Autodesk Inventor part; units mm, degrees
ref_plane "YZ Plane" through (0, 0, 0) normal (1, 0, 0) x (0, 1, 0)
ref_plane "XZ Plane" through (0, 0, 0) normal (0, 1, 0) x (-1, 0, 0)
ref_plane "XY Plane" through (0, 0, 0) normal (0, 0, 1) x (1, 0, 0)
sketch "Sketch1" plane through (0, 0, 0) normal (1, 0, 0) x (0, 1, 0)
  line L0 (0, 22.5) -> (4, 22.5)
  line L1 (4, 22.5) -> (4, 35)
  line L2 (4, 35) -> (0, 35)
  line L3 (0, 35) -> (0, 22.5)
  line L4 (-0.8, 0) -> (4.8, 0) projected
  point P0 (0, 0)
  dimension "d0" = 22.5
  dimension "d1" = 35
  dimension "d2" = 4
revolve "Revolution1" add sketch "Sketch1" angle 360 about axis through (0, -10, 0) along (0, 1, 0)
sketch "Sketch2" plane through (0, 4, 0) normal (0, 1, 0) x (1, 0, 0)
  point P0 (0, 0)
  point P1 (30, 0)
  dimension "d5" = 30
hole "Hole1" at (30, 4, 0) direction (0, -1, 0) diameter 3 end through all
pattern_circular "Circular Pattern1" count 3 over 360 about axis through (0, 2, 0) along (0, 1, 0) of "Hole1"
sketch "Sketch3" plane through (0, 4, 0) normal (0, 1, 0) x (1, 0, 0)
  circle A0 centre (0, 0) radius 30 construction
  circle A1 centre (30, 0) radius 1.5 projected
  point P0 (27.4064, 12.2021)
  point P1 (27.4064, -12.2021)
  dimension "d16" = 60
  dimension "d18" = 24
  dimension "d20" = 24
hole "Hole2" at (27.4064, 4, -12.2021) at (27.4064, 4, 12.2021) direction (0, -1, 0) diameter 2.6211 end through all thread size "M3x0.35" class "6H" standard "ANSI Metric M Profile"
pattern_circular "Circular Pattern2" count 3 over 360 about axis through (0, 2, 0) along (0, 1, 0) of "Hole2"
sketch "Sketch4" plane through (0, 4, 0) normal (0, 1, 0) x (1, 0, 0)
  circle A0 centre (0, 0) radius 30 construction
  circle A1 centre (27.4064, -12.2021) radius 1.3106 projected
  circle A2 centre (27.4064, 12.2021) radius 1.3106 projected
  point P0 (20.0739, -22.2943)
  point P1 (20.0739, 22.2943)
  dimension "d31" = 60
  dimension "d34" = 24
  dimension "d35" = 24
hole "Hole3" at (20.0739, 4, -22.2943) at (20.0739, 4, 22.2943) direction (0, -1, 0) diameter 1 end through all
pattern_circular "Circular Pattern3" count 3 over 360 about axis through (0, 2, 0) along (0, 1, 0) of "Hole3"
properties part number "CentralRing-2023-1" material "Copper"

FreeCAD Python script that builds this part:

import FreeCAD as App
import Part
import Sketcher

V = App.Vector


def add_polygon(sketch, points):
    """Adds a closed chain of lines whose ends are joined by coincident constraints."""
    first, n = sketch.GeometryCount, len(points)
    for a, b in zip(points, points[1:] + points[:1]):
        sketch.addGeometry(Part.LineSegment(App.Vector(*a, 0), App.Vector(*b, 0)), False)
    for i in range(n):
        sketch.addConstraint(Sketcher.Constraint("Coincident", first + i, 2, first + (i + 1) % n, 1))

doc = App.newDocument("Part")
params = doc.addObject("Spreadsheet::Sheet", "Params")
for row, (alias, value) in enumerate([
    ("sketch1_width", "4 mm"),
    ("revolution_angle", "360 deg"),
    ("sketch2_diameter", "3 mm"),
    ("hole_diameter", "3 mm"),
    ("hole2_diameter", "2.6211 mm"),
    ("sketch4_diameter", "1 mm"),
    ("hole3_diameter", "1 mm"),
], start=1):
    params.set(f"A{row}", alias)
    params.set(f"B{row}", "=" + value)
    params.setAlias(f"B{row}", alias)

body = doc.addObject("PartDesign::Body", "Body")

# Sketch on YZ plane
sketch1 = doc.addObject("Sketcher::SketchObject", "Sketch")
body.addObject(sketch1)
sketch1.AttachmentSupport = (doc.YZ_Plane, [""])
sketch1.MapMode = "FlatFace"
add_polygon(sketch1, [(0, 35), (0, 22.5), (4, 22.5), (4, 35)])  # lines 0-3
sketch1.addConstraint(Sketcher.Constraint("Vertical", 0))
sketch1.addConstraint(Sketcher.Constraint("Horizontal", 1))
sketch1.addConstraint(Sketcher.Constraint("Vertical", 2))
sketch1.addConstraint(Sketcher.Constraint("Horizontal", 3))
sketch1.addConstraint(Sketcher.Constraint("PointOnObject", 0, 2, -2))
sketch1.addConstraint(Sketcher.Constraint("DistanceX", 1, 1, 1, 2, 4.0))
sketch1.addConstraint(Sketcher.Constraint("DistanceY", -1, 1, 2, 2, 35.0))
sketch1.addConstraint(Sketcher.Constraint("DistanceY", -1, 1, 0, 2, 22.5))
sketch1.setExpression("Constraints[9]", "Params.sketch1_width")
revolution = doc.addObject("PartDesign::Revolution", "Revolution")
body.addObject(revolution)
revolution.Profile = sketch1
revolution.ReferenceAxis = (sketch1, ["H_Axis"])
revolution.setExpression("Angle", "Params.revolution_angle")

# Sketch on XZ plane
sketch2 = doc.addObject("Sketcher::SketchObject", "Sketch001")
body.addObject(sketch2)
sketch2.AttachmentSupport = (doc.XZ_Plane, [""])
sketch2.MapMode = "FlatFace"
sketch2.AttachmentOffset = App.Placement(V(0, 0, -4), App.Rotation())
sketch2.addGeometry(Part.Circle(V(30, 0, 0), V(0, 0, 1), 1.5), False)
sketch2.addConstraint(Sketcher.Constraint("PointOnObject", 0, 3, -1))
sketch2.addConstraint(Sketcher.Constraint("Diameter", 0, 3.0))
sketch2.addConstraint(Sketcher.Constraint("DistanceX", -1, 1, 0, 3, 30.0))
sketch2.setExpression("Constraints[1]", "Params.sketch2_diameter")
doc.recompute()
hole = doc.addObject("PartDesign::Hole", "Hole")
body.addObject(hole)
hole.Profile = sketch2
hole.ThreadType = "None"
hole.setExpression("Diameter", "Params.hole_diameter")
hole.DepthType = "ThroughAll"
hole.Reversed = True
doc.recompute()

polarpattern = doc.addObject("PartDesign::PolarPattern", "PolarPattern")
body.addObject(polarpattern)
polarpattern.Originals = [hole]
polarpattern.Axis = (doc.Y_Axis, [""])
polarpattern.Angle = 360
polarpattern.Occurrences = 3
body.Tip = polarpattern

# Sketch on XZ plane
sketch3 = doc.addObject("Sketcher::SketchObject", "Sketch002")
body.addObject(sketch3)
sketch3.AttachmentSupport = (doc.XZ_Plane, [""])
sketch3.MapMode = "FlatFace"
sketch3.AttachmentOffset = App.Placement(V(0, 0, -4), App.Rotation())
sketch3.addGeometry(Part.Circle(V(27.4, -12.2, 0), V(0, 0, 1), 1.3), False)
sketch3.addGeometry(Part.Circle(V(27.4, 12.2, 0), V(0, 0, 1), 1.3), False)
sketch3.addConstraint(Sketcher.Constraint("Equal", 0, 1))
sketch3.addConstraint(Sketcher.Constraint("Symmetric", 0, 3, 1, 3, -1))
sketch3.addConstraint(Sketcher.Constraint("Diameter", 0, 2.621))
sketch3.addConstraint(Sketcher.Constraint("DistanceY", 0, 3, -1, 1, 12.202))
sketch3.addConstraint(Sketcher.Constraint("DistanceX", -1, 1, 0, 3, 27.4064))
doc.recompute()
hole2 = doc.addObject("PartDesign::Hole", "Hole001")
body.addObject(hole2)
hole2.Profile = sketch3
hole2.ThreadType = "None"
hole2.setExpression("Diameter", "Params.hole2_diameter")
hole2.DepthType = "ThroughAll"
hole2.Reversed = True
doc.recompute()

polarpattern2 = doc.addObject("PartDesign::PolarPattern", "PolarPattern001")
body.addObject(polarpattern2)
polarpattern2.Originals = [hole2]
polarpattern2.Axis = (doc.Y_Axis, [""])
polarpattern2.Angle = 360
polarpattern2.Occurrences = 3
body.Tip = polarpattern2

# Sketch on XZ plane
sketch4 = doc.addObject("Sketcher::SketchObject", "Sketch003")
body.addObject(sketch4)
sketch4.AttachmentSupport = (doc.XZ_Plane, [""])
sketch4.MapMode = "FlatFace"
sketch4.AttachmentOffset = App.Placement(V(0, 0, -4), App.Rotation())
sketch4.addGeometry(Part.Circle(V(20.1, -22.3, 0), V(0, 0, 1), 0.5), False)
sketch4.addGeometry(Part.Circle(V(20.1, 22.3, 0), V(0, 0, 1), 0.5), False)
sketch4.addConstraint(Sketcher.Constraint("Equal", 0, 1))
sketch4.addConstraint(Sketcher.Constraint("Symmetric", 0, 3, 1, 3, -1))
sketch4.addConstraint(Sketcher.Constraint("Diameter", 0, 1.0))
sketch4.addConstraint(Sketcher.Constraint("DistanceX", -1, 1, 0, 3, 20.074))
sketch4.addConstraint(Sketcher.Constraint("DistanceY", 0, 3, -1, 1, 22.2943))
sketch4.setExpression("Constraints[2]", "Params.sketch4_diameter")
doc.recompute()
hole3 = doc.addObject("PartDesign::Hole", "Hole002")
body.addObject(hole3)
hole3.Profile = sketch4
hole3.ThreadType = "None"
hole3.setExpression("Diameter", "Params.hole3_diameter")
hole3.DepthType = "ThroughAll"
hole3.Reversed = True
doc.recompute()

polarpattern3 = doc.addObject("PartDesign::PolarPattern", "PolarPattern002")
body.addObject(polarpattern3)
polarpattern3.Originals = [hole3]
polarpattern3.Axis = (doc.Y_Axis, [""])
polarpattern3.Angle = 360
polarpattern3.Occurrences = 3
body.Tip = polarpattern3

doc.recompute()
